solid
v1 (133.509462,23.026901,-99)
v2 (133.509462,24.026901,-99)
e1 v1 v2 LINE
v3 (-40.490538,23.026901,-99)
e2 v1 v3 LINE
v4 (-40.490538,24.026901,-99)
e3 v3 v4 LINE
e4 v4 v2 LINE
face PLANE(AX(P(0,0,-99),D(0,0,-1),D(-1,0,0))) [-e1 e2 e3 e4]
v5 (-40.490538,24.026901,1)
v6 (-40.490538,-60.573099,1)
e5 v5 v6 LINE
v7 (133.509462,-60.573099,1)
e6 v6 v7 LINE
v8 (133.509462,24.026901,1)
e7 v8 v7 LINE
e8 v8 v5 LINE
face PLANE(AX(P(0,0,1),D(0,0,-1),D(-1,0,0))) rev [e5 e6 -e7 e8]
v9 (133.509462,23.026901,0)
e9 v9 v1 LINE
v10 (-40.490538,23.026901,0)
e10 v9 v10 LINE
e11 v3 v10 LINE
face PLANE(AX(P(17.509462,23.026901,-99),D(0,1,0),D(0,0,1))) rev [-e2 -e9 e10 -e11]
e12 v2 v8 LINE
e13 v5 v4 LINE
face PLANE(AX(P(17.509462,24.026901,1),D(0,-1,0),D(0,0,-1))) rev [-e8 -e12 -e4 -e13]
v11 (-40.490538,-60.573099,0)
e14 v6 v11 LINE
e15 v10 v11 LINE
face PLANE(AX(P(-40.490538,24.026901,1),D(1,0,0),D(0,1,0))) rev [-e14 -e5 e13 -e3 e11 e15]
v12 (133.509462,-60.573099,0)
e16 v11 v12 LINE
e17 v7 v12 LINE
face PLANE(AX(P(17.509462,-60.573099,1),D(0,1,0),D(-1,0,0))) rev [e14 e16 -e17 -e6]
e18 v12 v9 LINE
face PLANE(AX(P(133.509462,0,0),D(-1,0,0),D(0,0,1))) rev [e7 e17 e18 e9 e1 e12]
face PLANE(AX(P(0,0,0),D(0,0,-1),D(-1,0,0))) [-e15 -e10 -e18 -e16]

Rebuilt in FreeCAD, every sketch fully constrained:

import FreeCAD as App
import Part
import Sketcher
from FreeCAD import Vector
Q = App.Units.Quantity


def add_polygon(sketch, points):
    """Adds a closed chain of lines whose ends are joined by coincident constraints."""
    first, n = sketch.GeometryCount, len(points)
    for a, b in zip(points, points[1:] + points[:1]):
        sketch.addGeometry(Part.LineSegment(App.Vector(*a, 0), App.Vector(*b, 0)), False)
    for i in range(n):
        sketch.addConstraint(Sketcher.Constraint("Coincident", first + i, 2, first + (i + 1) % n, 1))

doc = App.newDocument("Part")
body = doc.addObject("PartDesign::Body", "Body")

# Sketch on XY plane
sketch1 = body.newObject("Sketcher::SketchObject", "Sketch")
sketch1.AttachmentSupport = (doc.getObject("XY_Plane"), [""])
sketch1.MapMode = "FlatFace"
add_polygon(sketch1, [(-40, 24), (-40, -61), (18, -61), (18, 24)])  # lines 0-3
sketch1.addConstraint(Sketcher.Constraint("Vertical", 0))
sketch1.addConstraint(Sketcher.Constraint("Horizontal", 1))
sketch1.addConstraint(Sketcher.Constraint("Vertical", 2))
sketch1.addConstraint(Sketcher.Constraint("Horizontal", 3))
sketch1.addConstraint(Sketcher.Constraint("DistanceX", 1, 1, 1, 2, Q("58 mm")))
sketch1.addConstraint(Sketcher.Constraint("DistanceY", 0, 2, 0, 1, Q("84.6 mm")))
sketch1.addConstraint(Sketcher.Constraint("DistanceY", 0, 2, -1, 1, Q("60.573099 mm")))
sketch1.addConstraint(Sketcher.Constraint("DistanceX", 0, 2, -1, 1, Q("40.490538 mm")))
pad1 = body.newObject("PartDesign::Pad", "Pad")
pad1.Profile = sketch1
pad1.Length = 1

# Sketch on XY plane
sketch2 = body.newObject("Sketcher::SketchObject", "Sketch001")
sketch2.AttachmentSupport = (doc.getObject("XY_Plane"), [""])
sketch2.MapMode = "FlatFace"
add_polygon(sketch2, [(17.5, 24), (17.5, 23), (-40.5, 23), (-40.5, 24)])  # lines 0-3
sketch2.addConstraint(Sketcher.Constraint("Vertical", 0))
sketch2.addConstraint(Sketcher.Constraint("Horizontal", 1))
sketch2.addConstraint(Sketcher.Constraint("Vertical", 2))
sketch2.addConstraint(Sketcher.Constraint("Horizontal", 3))
sketch2.addConstraint(Sketcher.Constraint("DistanceX", 1, 2, 1, 1, Q("58 mm")))
sketch2.addConstraint(Sketcher.Constraint("DistanceY", 0, 2, 0, 1, Q("1 mm")))
sketch2.addConstraint(Sketcher.Constraint("DistanceY", -1, 1, 0, 2, Q("23.026901 mm")))
sketch2.addConstraint(Sketcher.Constraint("DistanceX", -1, 1, 0, 2, Q("17.509462 mm")))
pad2 = body.newObject("PartDesign::Pad", "Pad001")
pad2.Profile = sketch2
pad2.Length = 99
pad2.Reversed = True

# Sketch on YZ plane
sketch3 = body.newObject("Sketcher::SketchObject", "Sketch002")
sketch3.AttachmentSupport = (doc.getObject("YZ_Plane"), [""])
sketch3.MapMode = "FlatFace"
sketch3.AttachmentOffset = App.Placement(Vector(0, 0, 17.509462), App.Rotation())
add_polygon(sketch3, [(23, -99), (24, -99), (24, 1), (-60.6, 1), (-60.6, 0), (23, 0)])  # lines 0-5
sketch3.addConstraint(Sketcher.Constraint("Horizontal", 0))
sketch3.addConstraint(Sketcher.Constraint("Vertical", 1))
sketch3.addConstraint(Sketcher.Constraint("Horizontal", 2))
sketch3.addConstraint(Sketcher.Constraint("Vertical", 3))
sketch3.addConstraint(Sketcher.Constraint("Horizontal", 4))
sketch3.addConstraint(Sketcher.Constraint("Vertical", 5))
sketch3.addConstraint(Sketcher.Constraint("PointOnObject", 3, 2, -1))
sketch3.addConstraint(Sketcher.Constraint("Equal", 0, 3))
sketch3.addConstraint(Sketcher.Constraint("DistanceX", 0, 1, 0, 2, Q("1 mm")))
sketch3.addConstraint(Sketcher.Constraint("DistanceY", 1, 1, 1, 2, Q("100 mm")))
sketch3.addConstraint(Sketcher.Constraint("DistanceX", 2, 2, 2, 1, Q("84.6 mm")))
sketch3.addConstraint(Sketcher.Constraint("DistanceX", -1, 1, 0, 2, Q("24.026901 mm")))
pad3 = body.newObject("PartDesign::Pad", "Pad002")
pad3.Profile = sketch3
pad3.Length = 116

doc.recompute()
